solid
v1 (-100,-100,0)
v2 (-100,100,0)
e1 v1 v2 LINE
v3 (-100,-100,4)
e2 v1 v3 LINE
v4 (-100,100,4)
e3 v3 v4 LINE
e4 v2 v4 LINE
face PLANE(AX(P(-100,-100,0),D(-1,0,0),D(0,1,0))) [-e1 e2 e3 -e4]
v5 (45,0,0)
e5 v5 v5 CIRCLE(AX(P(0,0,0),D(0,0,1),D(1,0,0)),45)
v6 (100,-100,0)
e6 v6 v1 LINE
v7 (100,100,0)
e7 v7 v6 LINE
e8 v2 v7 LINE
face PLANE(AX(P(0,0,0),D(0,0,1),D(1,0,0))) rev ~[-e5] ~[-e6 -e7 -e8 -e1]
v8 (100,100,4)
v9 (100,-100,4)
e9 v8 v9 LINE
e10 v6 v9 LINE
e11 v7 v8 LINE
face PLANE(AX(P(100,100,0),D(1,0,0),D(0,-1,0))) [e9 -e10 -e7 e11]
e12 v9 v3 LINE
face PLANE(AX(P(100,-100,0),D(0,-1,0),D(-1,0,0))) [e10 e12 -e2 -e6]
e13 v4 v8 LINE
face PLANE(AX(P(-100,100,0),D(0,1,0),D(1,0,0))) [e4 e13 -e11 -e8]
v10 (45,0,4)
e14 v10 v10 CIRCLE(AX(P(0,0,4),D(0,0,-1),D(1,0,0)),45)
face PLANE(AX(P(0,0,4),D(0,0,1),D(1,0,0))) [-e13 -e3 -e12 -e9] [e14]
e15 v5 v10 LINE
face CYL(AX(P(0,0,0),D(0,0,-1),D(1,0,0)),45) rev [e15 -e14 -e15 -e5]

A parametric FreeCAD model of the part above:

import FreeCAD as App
import Part
import Sketcher

doc = App.newDocument("Part")
body = doc.addObject("PartDesign::Body", "Body")

sketch1 = body.newObject("Sketcher::SketchObject", "Sketch")
sketch1.AttachmentSupport = (doc.getObject("XY_Plane"), [""])
sketch1.MapMode = "FlatFace"
sketch1.addGeometry([
    Part.LineSegment(App.Vector(100, 100, 0), App.Vector(-100, 100, 0)),
    Part.LineSegment(App.Vector(-100, 100, 0), App.Vector(-100, -100, 0)),
    Part.LineSegment(App.Vector(-100, -100, 0), App.Vector(100, -100, 0)),
    Part.LineSegment(App.Vector(100, -100, 0), App.Vector(100, 100, 0)),
], False)
sketch1.addConstraint([
    Sketcher.Constraint("Coincident", 0, 2, 1, 1),
    Sketcher.Constraint("Coincident", 1, 2, 2, 1),
    Sketcher.Constraint("Coincident", 2, 2, 3, 1),
    Sketcher.Constraint("Coincident", 3, 2, 0, 1),
    Sketcher.Constraint("Horizontal", 0),
    Sketcher.Constraint("Vertical", 1),
    Sketcher.Constraint("Horizontal", 2),
    Sketcher.Constraint("Vertical", 3),
    Sketcher.Constraint("Symmetric", 0, 2, 2, 2, -1, 1),
    Sketcher.Constraint("Equal", 2, 1),
    Sketcher.Constraint("DistanceX", 0, 2, 0, 1, 200.0),
])
pad1 = body.newObject("PartDesign::Pad", "Pad")
pad1.Profile = sketch1
pad1.Length = 4

sketch2 = body.newObject("Sketcher::SketchObject", "Sketch001")
sketch2.AttachmentSupport = (doc.getObject("XY_Plane"), [""])
sketch2.MapMode = "FlatFace"
sketch2.addGeometry(Part.Circle(App.Vector(0, 0, 0), App.Vector(0, 0, 1), 45), False)
sketch2.addConstraint([
    Sketcher.Constraint("Coincident", 0, 3, -1, 1),
    Sketcher.Constraint("Diameter", 0, 90.0),
])
pocket1 = body.newObject("PartDesign::Pocket", "Pocket")
pocket1.Profile = sketch2
pocket1.Length = 10
pocket1.Reversed = True

doc.recompute()
